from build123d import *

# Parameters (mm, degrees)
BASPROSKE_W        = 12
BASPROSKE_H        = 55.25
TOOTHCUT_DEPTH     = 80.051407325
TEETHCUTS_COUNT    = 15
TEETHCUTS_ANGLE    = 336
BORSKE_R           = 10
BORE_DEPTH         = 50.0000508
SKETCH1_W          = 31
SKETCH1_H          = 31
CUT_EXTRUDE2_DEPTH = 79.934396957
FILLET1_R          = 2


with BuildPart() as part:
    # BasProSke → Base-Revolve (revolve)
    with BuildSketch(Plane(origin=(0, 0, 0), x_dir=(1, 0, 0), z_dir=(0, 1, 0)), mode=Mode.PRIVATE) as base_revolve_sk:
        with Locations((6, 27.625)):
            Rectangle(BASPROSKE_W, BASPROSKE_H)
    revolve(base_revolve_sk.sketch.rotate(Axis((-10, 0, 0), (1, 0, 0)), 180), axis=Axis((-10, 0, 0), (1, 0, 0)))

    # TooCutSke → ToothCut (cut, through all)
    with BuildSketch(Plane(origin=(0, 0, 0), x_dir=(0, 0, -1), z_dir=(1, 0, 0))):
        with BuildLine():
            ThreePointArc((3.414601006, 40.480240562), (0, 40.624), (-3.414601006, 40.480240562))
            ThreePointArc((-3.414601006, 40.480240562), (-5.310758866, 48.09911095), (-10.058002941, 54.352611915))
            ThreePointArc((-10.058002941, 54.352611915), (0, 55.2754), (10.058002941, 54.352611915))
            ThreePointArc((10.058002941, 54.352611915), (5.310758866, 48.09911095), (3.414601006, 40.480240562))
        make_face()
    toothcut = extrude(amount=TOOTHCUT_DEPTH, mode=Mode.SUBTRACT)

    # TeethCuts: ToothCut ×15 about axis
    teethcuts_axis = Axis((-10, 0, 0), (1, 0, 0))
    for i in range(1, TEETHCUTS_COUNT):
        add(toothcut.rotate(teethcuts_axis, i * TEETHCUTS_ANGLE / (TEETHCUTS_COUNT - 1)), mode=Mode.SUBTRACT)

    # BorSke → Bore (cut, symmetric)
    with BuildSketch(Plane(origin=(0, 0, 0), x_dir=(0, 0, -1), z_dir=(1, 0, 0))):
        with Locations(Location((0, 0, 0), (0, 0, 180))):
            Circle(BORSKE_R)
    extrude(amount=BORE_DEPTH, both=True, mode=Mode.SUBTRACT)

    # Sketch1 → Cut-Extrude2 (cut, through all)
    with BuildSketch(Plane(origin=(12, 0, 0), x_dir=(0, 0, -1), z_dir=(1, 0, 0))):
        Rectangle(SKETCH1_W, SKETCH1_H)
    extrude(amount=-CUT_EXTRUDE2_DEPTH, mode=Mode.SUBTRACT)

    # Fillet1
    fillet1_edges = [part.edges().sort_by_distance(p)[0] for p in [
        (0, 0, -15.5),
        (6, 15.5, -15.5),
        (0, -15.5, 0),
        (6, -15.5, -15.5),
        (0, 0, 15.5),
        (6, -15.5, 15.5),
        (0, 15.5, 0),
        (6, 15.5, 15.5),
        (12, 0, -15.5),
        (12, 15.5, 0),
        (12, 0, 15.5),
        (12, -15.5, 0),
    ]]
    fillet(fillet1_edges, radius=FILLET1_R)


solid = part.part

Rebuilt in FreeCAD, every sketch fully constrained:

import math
import FreeCAD as App
import Part
import Sketcher


def edges_at(feature, points):
    """Names of the edges that pass closest to the given points."""
    edges = feature.Shape.Edges
    near = lambda p: min(range(len(edges)), key=lambda i: edges[i].distToShape(Part.Vertex(*p))[0])
    return sorted({f"Edge{near(p) + 1}" for p in points})

doc = App.newDocument("Part")
body = doc.addObject("PartDesign::Body", "Body")

# Sketch on XZ plane
sketch1 = body.newObject("Sketcher::SketchObject", "Sketch")
sketch1.AttachmentSupport = (doc.getObject("XZ_Plane"), [""])
sketch1.MapMode = "FlatFace"
sketch1.addGeometry(Part.LineSegment(App.Vector(0, -55.25, 0), App.Vector(0, 0, 0)), False)
sketch1.addGeometry(Part.LineSegment(App.Vector(0, 0, 0), App.Vector(12, 0, 0)), False)
sketch1.addGeometry(Part.LineSegment(App.Vector(12, 0, 0), App.Vector(12, -55.25, 0)), False)
sketch1.addGeometry(Part.LineSegment(App.Vector(12, -55.25, 0), App.Vector(0, -55.25, 0)), False)
sketch1.addConstraint(Sketcher.Constraint("Coincident", 0, 2, 1, 1))
sketch1.addConstraint(Sketcher.Constraint("Coincident", 1, 2, 2, 1))
sketch1.addConstraint(Sketcher.Constraint("Coincident", 2, 2, 3, 1))
sketch1.addConstraint(Sketcher.Constraint("Coincident", 3, 2, 0, 1))
sketch1.addConstraint(Sketcher.Constraint("Vertical", 0))
sketch1.addConstraint(Sketcher.Constraint("Horizontal", 1))
sketch1.addConstraint(Sketcher.Constraint("Vertical", 2))
sketch1.addConstraint(Sketcher.Constraint("Horizontal", 3))
sketch1.addConstraint(Sketcher.Constraint("Coincident", 0, 2, -1, 1))
sketch1.addConstraint(Sketcher.Constraint("DistanceX", 1, 1, 1, 2, 12.0))
sketch1.addConstraint(Sketcher.Constraint("DistanceY", 0, 1, 0, 2, 55.25))
revolution = body.newObject("PartDesign::Revolution", "Revolution")
revolution.Profile = sketch1
revolution.ReferenceAxis = (sketch1, ["H_Axis"])
revolution.Angle = 360

# Sketch on YZ plane
sketch2 = body.newObject("Sketcher::SketchObject", "Sketch001")
sketch2.AttachmentSupport = (doc.getObject("YZ_Plane"), [""])
sketch2.MapMode = "FlatFace"
sketch2.addGeometry(Part.ArcOfCircle(Part.Circle(App.Vector(0, 0, 0), App.Vector(0, 0, 1), 40.624), math.radians(-4.821616), math.radians(4.821616)), False)
sketch2.addGeometry(Part.ArcOfCircle(Part.Circle(App.Vector(39.676661, -22.898037, 0), App.Vector(0, 0, 1), 19.5), math.radians(41.182777), math.radians(87.638217)), False)
sketch2.addGeometry(Part.ArcOfCircle(Part.Circle(App.Vector(0, 0, 0), App.Vector(0, 0, 1), 55.2754), math.radians(-10.484041), math.radians(10.484041)), False)
sketch2.addGeometry(Part.ArcOfCircle(Part.Circle(App.Vector(39.676661, 22.898037, 0), App.Vector(0, 0, 1), 19.5), math.radians(-87.638217), math.radians(-41.182777)), False)
sketch2.addConstraint(Sketcher.Constraint("Coincident", 0, 1, 1, 2))
sketch2.addConstraint(Sketcher.Constraint("Coincident", 1, 1, 2, 1))
sketch2.addConstraint(Sketcher.Constraint("Coincident", 2, 2, 3, 2))
sketch2.addConstraint(Sketcher.Constraint("Coincident", 3, 1, 0, 2))
sketch2.addConstraint(Sketcher.Constraint("Coincident", 0, 3, -1, 1))
sketch2.addConstraint(Sketcher.Constraint("Coincident", 2, 3, -1, 1))
sketch2.addConstraint(Sketcher.Constraint("Equal", 1, 3))
sketch2.addConstraint(Sketcher.Constraint("Symmetric", 1, 3, 3, 3, -1))
sketch2.addConstraint(Sketcher.Constraint("Radius", 1, 19.5))
sketch2.addConstraint(Sketcher.Constraint("Radius", 0, 40.624))
sketch2.addConstraint(Sketcher.Constraint("Radius", 2, 55.2754))
sketch2.addConstraint(Sketcher.Constraint("DistanceY", 0, 1, -1, 1, 3.414601))
sketch2.addConstraint(Sketcher.Constraint("DistanceY", 1, 1, 0, 1, 6.643402))
pocket1 = body.newObject("PartDesign::Pocket", "Pocket")
pocket1.Profile = sketch2
pocket1.Type = "ThroughAll"
pocket1.Reversed = True
doc.recompute()

polarpattern = body.newObject("PartDesign::PolarPattern", "PolarPattern")
polarpattern.Originals = [pocket1]
polarpattern.Axis = (doc.getObject("X_Axis"), [""])
polarpattern.Angle = 360
polarpattern.Occurrences = 15
body.Tip = polarpattern

# Sketch on YZ plane
sketch3 = body.newObject("Sketcher::SketchObject", "Sketch002")
sketch3.AttachmentSupport = (doc.getObject("YZ_Plane"), [""])
sketch3.MapMode = "FlatFace"
sketch3.addGeometry(Part.Circle(App.Vector(0, 0, 0), App.Vector(0, 0, 1), 10), False)
sketch3.addConstraint(Sketcher.Constraint("Coincident", 0, 3, -1, 1))
sketch3.addConstraint(Sketcher.Constraint("Diameter", 0, 20.0))
pocket2 = body.newObject("PartDesign::Pocket", "Pocket001")
pocket2.Profile = sketch3
pocket2.Length = 100.000102
pocket2.Midplane = True

# Sketch on YZ plane
sketch4 = body.newObject("Sketcher::SketchObject", "Sketch003")
sketch4.AttachmentSupport = (doc.getObject("YZ_Plane"), [""])
sketch4.MapMode = "FlatFace"
sketch4.AttachmentOffset = App.Placement(App.Vector(0, 0, 12), App.Rotation())
sketch4.addGeometry(Part.LineSegment(App.Vector(15.5, 15.5, 0), App.Vector(-15.5, 15.5, 0)), False)
sketch4.addGeometry(Part.LineSegment(App.Vector(-15.5, 15.5, 0), App.Vector(-15.5, -15.5, 0)), False)
sketch4.addGeometry(Part.LineSegment(App.Vector(-15.5, -15.5, 0), App.Vector(15.5, -15.5, 0)), False)
sketch4.addGeometry(Part.LineSegment(App.Vector(15.5, -15.5, 0), App.Vector(15.5, 15.5, 0)), False)
sketch4.addConstraint(Sketcher.Constraint("Coincident", 0, 2, 1, 1))
sketch4.addConstraint(Sketcher.Constraint("Coincident", 1, 2, 2, 1))
sketch4.addConstraint(Sketcher.Constraint("Coincident", 2, 2, 3, 1))
sketch4.addConstraint(Sketcher.Constraint("Coincident", 3, 2, 0, 1))
sketch4.addConstraint(Sketcher.Constraint("Horizontal", 0))
sketch4.addConstraint(Sketcher.Constraint("Vertical", 1))
sketch4.addConstraint(Sketcher.Constraint("Horizontal", 2))
sketch4.addConstraint(Sketcher.Constraint("Vertical", 3))
sketch4.addConstraint(Sketcher.Constraint("Symmetric", 0, 2, 2, 2, -1, 1))
sketch4.addConstraint(Sketcher.Constraint("Equal", 2, 1))
sketch4.addConstraint(Sketcher.Constraint("DistanceX", 0, 2, 0, 1, 31.0))
pocket3 = body.newObject("PartDesign::Pocket", "Pocket002")
pocket3.Profile = sketch4
pocket3.Type = "ThroughAll"
doc.recompute()

fillet = body.newObject("PartDesign::Fillet", "Fillet")
fillet.Base = (pocket3, edges_at(pocket3, [
    (0, 0, -15.5),
    (6, 15.5, -15.5),
    (0, -15.5, 0),
    (6, -15.5, -15.5),
    (0, 0, 15.5),
    (6, -15.5, 15.5),
    (0, 15.5, 0),
    (6, 15.5, 15.5),
    (12, 0, -15.5),
    (12, 15.5, 0),
    (12, 0, 15.5),
    (12, -15.5, 0),
]))
fillet.Radius = 2

doc.recompute()
